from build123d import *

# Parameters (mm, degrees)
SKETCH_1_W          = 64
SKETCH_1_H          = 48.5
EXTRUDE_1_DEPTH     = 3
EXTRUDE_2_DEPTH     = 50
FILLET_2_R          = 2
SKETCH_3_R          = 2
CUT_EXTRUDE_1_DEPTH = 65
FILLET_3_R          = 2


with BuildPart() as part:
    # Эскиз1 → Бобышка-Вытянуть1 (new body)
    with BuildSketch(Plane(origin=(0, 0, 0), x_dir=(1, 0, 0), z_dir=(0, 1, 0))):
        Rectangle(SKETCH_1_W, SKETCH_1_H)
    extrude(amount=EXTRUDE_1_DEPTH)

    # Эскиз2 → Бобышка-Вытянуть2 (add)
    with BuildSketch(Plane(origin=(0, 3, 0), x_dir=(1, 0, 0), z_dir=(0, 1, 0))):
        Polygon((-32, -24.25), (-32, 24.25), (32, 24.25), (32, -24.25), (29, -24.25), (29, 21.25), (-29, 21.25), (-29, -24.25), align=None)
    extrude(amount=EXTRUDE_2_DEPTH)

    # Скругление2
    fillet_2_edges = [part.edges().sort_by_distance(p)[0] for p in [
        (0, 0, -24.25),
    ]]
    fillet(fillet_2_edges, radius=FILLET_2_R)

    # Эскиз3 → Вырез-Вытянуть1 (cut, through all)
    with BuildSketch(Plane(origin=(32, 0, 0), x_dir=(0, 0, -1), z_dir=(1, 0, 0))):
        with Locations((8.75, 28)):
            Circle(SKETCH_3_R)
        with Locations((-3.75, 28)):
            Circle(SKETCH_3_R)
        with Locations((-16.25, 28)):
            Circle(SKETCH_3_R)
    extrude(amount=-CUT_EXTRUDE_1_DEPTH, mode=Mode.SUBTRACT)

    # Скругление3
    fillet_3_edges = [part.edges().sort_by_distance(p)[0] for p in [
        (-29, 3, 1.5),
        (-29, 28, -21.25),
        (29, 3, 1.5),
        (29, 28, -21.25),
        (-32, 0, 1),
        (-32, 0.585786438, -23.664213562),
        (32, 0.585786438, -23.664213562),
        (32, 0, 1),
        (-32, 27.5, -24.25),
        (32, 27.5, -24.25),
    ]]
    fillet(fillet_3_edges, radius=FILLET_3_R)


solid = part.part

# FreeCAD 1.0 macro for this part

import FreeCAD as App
import Part
import Sketcher
from FreeCAD import Vector
Q = App.Units.Quantity


def edges_at(feature, points):
    """Names of the edges that pass closest to the given points."""
    edges = feature.Shape.Edges
    near = lambda p: min(range(len(edges)), key=lambda i: edges[i].distToShape(Part.Vertex(*p))[0])
    return sorted({f"Edge{near(p) + 1}" for p in points})

doc = App.newDocument("Part")
body = doc.addObject("PartDesign::Body", "Body")

sketch1 = body.newObject("Sketcher::SketchObject", "Sketch")
sketch1.AttachmentSupport = (doc.getObject("XZ_Plane"), [""])
sketch1.MapMode = "FlatFace"
sketch1.addGeometry([
    Part.LineSegment(Vector(-32, -24, 0), Vector(-32, 24, 0)),
    Part.LineSegment(Vector(-32, 24, 0), Vector(32, 24, 0)),
    Part.LineSegment(Vector(32, 24, 0), Vector(32, -24, 0)),
    Part.LineSegment(Vector(32, -24, 0), Vector(-32, -24, 0)),
], False)
sketch1.addConstraint([
    Sketcher.Constraint("Coincident", 0, 2, 1, 1),
    Sketcher.Constraint("Coincident", 1, 2, 2, 1),
    Sketcher.Constraint("Coincident", 2, 2, 3, 1),
    Sketcher.Constraint("Coincident", 3, 2, 0, 1),
    Sketcher.Constraint("Vertical", 0),
    Sketcher.Constraint("Horizontal", 1),
    Sketcher.Constraint("Vertical", 2),
    Sketcher.Constraint("Horizontal", 3),
    Sketcher.Constraint("Symmetric", 0, 2, 2, 2, -1, 1),
    Sketcher.Constraint("DistanceX", 1, 1, 1, 2, Q("64 mm")),
    Sketcher.Constraint("DistanceY", 0, 1, 0, 2, Q("48.5 mm")),
])
pad1 = body.newObject("PartDesign::Pad", "Pad")
pad1.Profile = sketch1
pad1.Length = 3
pad1.Reversed = True

sketch2 = body.newObject("Sketcher::SketchObject", "Sketch001")
sketch2.AttachmentSupport = (doc.getObject("XZ_Plane"), [""])
sketch2.MapMode = "FlatFace"
sketch2.AttachmentOffset = App.Placement(Vector(0, 0, -3), App.Rotation())
sketch2.addGeometry([
    Part.LineSegment(Vector(-32, -24.2, 0), Vector(-32, 24.2, 0)),
    Part.LineSegment(Vector(-32, 24.2, 0), Vector(-29, 24.2, 0)),
    Part.LineSegment(Vector(-29, 24.2, 0), Vector(-29, -21.2, 0)),
    Part.LineSegment(Vector(-29, -21.2, 0), Vector(29, -21.2, 0)),
    Part.LineSegment(Vector(29, -21.2, 0), Vector(29, 24.2, 0)),
    Part.LineSegment(Vector(29, 24.2, 0), Vector(32, 24.2, 0)),
    Part.LineSegment(Vector(32, 24.2, 0), Vector(32, -24.2, 0)),
    Part.LineSegment(Vector(32, -24.2, 0), Vector(-32, -24.2, 0)),
], False)
sketch2.addConstraint([
    Sketcher.Constraint("Coincident", 0, 2, 1, 1),
    Sketcher.Constraint("Coincident", 1, 2, 2, 1),
    Sketcher.Constraint("Coincident", 2, 2, 3, 1),
    Sketcher.Constraint("Coincident", 3, 2, 4, 1),
    Sketcher.Constraint("Coincident", 4, 2, 5, 1),
    Sketcher.Constraint("Coincident", 5, 2, 6, 1),
    Sketcher.Constraint("Coincident", 6, 2, 7, 1),
    Sketcher.Constraint("Coincident", 7, 2, 0, 1),
    Sketcher.Constraint("Vertical", 0),
    Sketcher.Constraint("Horizontal", 1),
    Sketcher.Constraint("Vertical", 2),
    Sketcher.Constraint("Horizontal", 3),
    Sketcher.Constraint("Vertical", 4),
    Sketcher.Constraint("Horizontal", 5),
    Sketcher.Constraint("Vertical", 6),
    Sketcher.Constraint("Horizontal", 7),
    Sketcher.Constraint("Symmetric", 0, 2, 6, 2, -1, 1),
    Sketcher.Constraint("Symmetric", 1, 2, 4, 2, -2),
    Sketcher.Constraint("DistanceX", 1, 1, 1, 2, Q("3 mm")),
    Sketcher.Constraint("DistanceX", 3, 1, 3, 2, Q("58 mm")),
    Sketcher.Constraint("DistanceY", 0, 1, 0, 2, Q("48.5 mm")),
    Sketcher.Constraint("DistanceY", 2, 2, 2, 1, Q("45.5 mm")),
])
pad2 = body.newObject("PartDesign::Pad", "Pad001")
pad2.Profile = sketch2
pad2.Length = 50
pad2.Reversed = True
doc.recompute()

fillet = body.newObject("PartDesign::Fillet", "Fillet")
fillet.Base = (pad2, edges_at(pad2, [(0, 0, -24.25)]))
fillet.Radius = 2

sketch3 = body.newObject("Sketcher::SketchObject", "Sketch002")
sketch3.AttachmentSupport = (doc.getObject("YZ_Plane"), [""])
sketch3.MapMode = "FlatFace"
sketch3.AttachmentOffset = App.Placement(Vector(0, 0, 32), App.Rotation())
sketch3.addGeometry([
    Part.Circle(Vector(28, -8.8, 0), Vector(0, 0, 1), 2),
    Part.Circle(Vector(28, 3.8, 0), Vector(0, 0, 1), 2),
    Part.Circle(Vector(28, 16.2, 0), Vector(0, 0, 1), 2),
], False)
sketch3.addConstraint([
    Sketcher.Constraint("Equal", 0, 1),
    Sketcher.Constraint("Equal", 1, 2),
    Sketcher.Constraint("Vertical", 0, 3, 1, 3),
    Sketcher.Constraint("Vertical", 1, 3, 2, 3),
    Sketcher.Constraint("Diameter", 0, Q("4 mm")),
    Sketcher.Constraint("DistanceX", -1, 1, 0, 3, Q("28 mm")),
    Sketcher.Constraint("DistanceY", 0, 3, 2, 3, Q("25 mm")),
    Sketcher.Constraint("DistanceY", 0, 3, 1, 3, Q("12.5 mm")),
    Sketcher.Constraint("DistanceY", 0, 3, -1, 1, Q("8.75 mm")),
])
pocket1 = body.newObject("PartDesign::Pocket", "Pocket")
pocket1.Profile = sketch3
pocket1.Type = "ThroughAll"
doc.recompute()

fillet2 = body.newObject("PartDesign::Fillet", "Fillet001")
fillet2.Base = (pocket1, edges_at(pocket1, [
    (-29, 3, 1.5),
    (-29, 28, -21.25),
    (29, 3, 1.5),
    (29, 28, -21.25),
    (-32, 0, 1),
    (-32, 0.586, -23.664),
    (32, 0.586, -23.664),
    (32, 0, 1),
    (-32, 27.5, -24.25),
    (32, 27.5, -24.25),
]))
fillet2.Radius = 2

doc.recompute()
